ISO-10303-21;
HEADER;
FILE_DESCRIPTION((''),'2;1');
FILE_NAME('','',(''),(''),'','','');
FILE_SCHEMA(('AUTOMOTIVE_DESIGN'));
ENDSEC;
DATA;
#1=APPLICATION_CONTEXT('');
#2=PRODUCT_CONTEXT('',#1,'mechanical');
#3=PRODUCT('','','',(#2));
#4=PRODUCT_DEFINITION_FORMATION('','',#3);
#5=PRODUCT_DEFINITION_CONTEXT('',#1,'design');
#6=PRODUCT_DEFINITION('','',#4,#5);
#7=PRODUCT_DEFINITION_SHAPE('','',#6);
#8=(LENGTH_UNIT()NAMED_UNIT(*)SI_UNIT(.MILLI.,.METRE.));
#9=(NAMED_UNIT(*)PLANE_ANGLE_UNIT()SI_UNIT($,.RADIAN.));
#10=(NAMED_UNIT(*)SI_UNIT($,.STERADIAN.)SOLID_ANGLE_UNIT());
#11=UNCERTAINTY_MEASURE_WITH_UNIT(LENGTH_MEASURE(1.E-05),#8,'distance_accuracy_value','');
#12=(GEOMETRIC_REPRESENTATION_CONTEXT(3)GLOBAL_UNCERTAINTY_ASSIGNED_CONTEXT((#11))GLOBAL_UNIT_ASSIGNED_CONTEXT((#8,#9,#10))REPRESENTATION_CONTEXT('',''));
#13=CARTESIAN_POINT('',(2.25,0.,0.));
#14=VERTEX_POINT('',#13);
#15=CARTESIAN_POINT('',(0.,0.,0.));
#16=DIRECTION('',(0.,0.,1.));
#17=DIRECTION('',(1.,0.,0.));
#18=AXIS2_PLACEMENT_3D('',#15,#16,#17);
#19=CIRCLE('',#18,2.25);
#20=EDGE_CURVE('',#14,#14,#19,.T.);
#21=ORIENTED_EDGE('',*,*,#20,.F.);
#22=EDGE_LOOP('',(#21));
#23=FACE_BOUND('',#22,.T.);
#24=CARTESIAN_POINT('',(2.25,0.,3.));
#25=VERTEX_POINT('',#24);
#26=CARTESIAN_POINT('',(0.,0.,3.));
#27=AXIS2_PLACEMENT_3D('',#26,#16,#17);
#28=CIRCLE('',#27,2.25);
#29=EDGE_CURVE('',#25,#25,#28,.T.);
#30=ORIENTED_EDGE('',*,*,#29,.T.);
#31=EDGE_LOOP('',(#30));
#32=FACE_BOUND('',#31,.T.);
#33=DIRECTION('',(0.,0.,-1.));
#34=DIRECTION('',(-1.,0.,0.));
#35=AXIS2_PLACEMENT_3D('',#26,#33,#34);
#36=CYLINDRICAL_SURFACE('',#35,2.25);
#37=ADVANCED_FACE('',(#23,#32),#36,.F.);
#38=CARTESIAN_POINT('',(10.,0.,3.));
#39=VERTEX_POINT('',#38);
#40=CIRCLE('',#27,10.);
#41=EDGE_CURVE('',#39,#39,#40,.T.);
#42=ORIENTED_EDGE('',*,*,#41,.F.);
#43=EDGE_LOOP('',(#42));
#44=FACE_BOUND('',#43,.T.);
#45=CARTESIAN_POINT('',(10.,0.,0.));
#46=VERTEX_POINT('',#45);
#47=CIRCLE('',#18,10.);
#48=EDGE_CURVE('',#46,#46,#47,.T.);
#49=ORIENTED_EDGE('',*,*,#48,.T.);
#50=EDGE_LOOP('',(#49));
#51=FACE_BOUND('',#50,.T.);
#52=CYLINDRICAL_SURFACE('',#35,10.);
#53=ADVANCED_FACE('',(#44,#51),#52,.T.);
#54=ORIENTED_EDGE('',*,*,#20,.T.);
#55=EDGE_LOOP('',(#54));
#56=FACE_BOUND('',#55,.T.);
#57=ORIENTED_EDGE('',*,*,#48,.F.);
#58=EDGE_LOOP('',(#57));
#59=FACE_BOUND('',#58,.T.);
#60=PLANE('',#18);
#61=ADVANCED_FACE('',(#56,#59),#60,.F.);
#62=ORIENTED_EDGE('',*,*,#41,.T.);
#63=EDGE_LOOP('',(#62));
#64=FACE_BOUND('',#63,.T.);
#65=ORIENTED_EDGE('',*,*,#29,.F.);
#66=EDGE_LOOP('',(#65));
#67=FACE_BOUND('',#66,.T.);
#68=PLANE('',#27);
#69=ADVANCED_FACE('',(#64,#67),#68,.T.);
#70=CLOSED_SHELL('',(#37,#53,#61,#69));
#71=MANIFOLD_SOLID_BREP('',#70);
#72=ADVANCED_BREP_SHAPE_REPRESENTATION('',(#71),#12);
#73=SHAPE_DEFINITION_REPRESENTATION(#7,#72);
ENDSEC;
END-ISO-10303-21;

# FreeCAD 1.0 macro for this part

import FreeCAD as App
import Part
import Sketcher

V = App.Vector

doc = App.newDocument("Part")
body = doc.addObject("PartDesign::Body", "Body")

# Sketch on XY plane
sketch1 = body.newObject("Sketcher::SketchObject", "Sketch")
sketch1.AttachmentSupport = (doc.getObject("XY_Plane"), [""])
sketch1.MapMode = "FlatFace"
sketch1.addGeometry(Part.Circle(V(0, 0, 0), V(0, 0, 1), 10), False)
sketch1.addGeometry(Part.Circle(V(0, 0, 0), V(0, 0, 1), 2.2), False)
sketch1.addConstraint(Sketcher.Constraint("Coincident", 0, 3, -1, 1))
sketch1.addConstraint(Sketcher.Constraint("Coincident", 1, 3, -1, 1))
sketch1.addConstraint(Sketcher.Constraint("Diameter", 0, 20.0))
sketch1.addConstraint(Sketcher.Constraint("Diameter", 1, 4.5))
pad1 = body.newObject("PartDesign::Pad", "Pad")
pad1.Profile = sketch1
pad1.Length = 3

doc.recompute()
